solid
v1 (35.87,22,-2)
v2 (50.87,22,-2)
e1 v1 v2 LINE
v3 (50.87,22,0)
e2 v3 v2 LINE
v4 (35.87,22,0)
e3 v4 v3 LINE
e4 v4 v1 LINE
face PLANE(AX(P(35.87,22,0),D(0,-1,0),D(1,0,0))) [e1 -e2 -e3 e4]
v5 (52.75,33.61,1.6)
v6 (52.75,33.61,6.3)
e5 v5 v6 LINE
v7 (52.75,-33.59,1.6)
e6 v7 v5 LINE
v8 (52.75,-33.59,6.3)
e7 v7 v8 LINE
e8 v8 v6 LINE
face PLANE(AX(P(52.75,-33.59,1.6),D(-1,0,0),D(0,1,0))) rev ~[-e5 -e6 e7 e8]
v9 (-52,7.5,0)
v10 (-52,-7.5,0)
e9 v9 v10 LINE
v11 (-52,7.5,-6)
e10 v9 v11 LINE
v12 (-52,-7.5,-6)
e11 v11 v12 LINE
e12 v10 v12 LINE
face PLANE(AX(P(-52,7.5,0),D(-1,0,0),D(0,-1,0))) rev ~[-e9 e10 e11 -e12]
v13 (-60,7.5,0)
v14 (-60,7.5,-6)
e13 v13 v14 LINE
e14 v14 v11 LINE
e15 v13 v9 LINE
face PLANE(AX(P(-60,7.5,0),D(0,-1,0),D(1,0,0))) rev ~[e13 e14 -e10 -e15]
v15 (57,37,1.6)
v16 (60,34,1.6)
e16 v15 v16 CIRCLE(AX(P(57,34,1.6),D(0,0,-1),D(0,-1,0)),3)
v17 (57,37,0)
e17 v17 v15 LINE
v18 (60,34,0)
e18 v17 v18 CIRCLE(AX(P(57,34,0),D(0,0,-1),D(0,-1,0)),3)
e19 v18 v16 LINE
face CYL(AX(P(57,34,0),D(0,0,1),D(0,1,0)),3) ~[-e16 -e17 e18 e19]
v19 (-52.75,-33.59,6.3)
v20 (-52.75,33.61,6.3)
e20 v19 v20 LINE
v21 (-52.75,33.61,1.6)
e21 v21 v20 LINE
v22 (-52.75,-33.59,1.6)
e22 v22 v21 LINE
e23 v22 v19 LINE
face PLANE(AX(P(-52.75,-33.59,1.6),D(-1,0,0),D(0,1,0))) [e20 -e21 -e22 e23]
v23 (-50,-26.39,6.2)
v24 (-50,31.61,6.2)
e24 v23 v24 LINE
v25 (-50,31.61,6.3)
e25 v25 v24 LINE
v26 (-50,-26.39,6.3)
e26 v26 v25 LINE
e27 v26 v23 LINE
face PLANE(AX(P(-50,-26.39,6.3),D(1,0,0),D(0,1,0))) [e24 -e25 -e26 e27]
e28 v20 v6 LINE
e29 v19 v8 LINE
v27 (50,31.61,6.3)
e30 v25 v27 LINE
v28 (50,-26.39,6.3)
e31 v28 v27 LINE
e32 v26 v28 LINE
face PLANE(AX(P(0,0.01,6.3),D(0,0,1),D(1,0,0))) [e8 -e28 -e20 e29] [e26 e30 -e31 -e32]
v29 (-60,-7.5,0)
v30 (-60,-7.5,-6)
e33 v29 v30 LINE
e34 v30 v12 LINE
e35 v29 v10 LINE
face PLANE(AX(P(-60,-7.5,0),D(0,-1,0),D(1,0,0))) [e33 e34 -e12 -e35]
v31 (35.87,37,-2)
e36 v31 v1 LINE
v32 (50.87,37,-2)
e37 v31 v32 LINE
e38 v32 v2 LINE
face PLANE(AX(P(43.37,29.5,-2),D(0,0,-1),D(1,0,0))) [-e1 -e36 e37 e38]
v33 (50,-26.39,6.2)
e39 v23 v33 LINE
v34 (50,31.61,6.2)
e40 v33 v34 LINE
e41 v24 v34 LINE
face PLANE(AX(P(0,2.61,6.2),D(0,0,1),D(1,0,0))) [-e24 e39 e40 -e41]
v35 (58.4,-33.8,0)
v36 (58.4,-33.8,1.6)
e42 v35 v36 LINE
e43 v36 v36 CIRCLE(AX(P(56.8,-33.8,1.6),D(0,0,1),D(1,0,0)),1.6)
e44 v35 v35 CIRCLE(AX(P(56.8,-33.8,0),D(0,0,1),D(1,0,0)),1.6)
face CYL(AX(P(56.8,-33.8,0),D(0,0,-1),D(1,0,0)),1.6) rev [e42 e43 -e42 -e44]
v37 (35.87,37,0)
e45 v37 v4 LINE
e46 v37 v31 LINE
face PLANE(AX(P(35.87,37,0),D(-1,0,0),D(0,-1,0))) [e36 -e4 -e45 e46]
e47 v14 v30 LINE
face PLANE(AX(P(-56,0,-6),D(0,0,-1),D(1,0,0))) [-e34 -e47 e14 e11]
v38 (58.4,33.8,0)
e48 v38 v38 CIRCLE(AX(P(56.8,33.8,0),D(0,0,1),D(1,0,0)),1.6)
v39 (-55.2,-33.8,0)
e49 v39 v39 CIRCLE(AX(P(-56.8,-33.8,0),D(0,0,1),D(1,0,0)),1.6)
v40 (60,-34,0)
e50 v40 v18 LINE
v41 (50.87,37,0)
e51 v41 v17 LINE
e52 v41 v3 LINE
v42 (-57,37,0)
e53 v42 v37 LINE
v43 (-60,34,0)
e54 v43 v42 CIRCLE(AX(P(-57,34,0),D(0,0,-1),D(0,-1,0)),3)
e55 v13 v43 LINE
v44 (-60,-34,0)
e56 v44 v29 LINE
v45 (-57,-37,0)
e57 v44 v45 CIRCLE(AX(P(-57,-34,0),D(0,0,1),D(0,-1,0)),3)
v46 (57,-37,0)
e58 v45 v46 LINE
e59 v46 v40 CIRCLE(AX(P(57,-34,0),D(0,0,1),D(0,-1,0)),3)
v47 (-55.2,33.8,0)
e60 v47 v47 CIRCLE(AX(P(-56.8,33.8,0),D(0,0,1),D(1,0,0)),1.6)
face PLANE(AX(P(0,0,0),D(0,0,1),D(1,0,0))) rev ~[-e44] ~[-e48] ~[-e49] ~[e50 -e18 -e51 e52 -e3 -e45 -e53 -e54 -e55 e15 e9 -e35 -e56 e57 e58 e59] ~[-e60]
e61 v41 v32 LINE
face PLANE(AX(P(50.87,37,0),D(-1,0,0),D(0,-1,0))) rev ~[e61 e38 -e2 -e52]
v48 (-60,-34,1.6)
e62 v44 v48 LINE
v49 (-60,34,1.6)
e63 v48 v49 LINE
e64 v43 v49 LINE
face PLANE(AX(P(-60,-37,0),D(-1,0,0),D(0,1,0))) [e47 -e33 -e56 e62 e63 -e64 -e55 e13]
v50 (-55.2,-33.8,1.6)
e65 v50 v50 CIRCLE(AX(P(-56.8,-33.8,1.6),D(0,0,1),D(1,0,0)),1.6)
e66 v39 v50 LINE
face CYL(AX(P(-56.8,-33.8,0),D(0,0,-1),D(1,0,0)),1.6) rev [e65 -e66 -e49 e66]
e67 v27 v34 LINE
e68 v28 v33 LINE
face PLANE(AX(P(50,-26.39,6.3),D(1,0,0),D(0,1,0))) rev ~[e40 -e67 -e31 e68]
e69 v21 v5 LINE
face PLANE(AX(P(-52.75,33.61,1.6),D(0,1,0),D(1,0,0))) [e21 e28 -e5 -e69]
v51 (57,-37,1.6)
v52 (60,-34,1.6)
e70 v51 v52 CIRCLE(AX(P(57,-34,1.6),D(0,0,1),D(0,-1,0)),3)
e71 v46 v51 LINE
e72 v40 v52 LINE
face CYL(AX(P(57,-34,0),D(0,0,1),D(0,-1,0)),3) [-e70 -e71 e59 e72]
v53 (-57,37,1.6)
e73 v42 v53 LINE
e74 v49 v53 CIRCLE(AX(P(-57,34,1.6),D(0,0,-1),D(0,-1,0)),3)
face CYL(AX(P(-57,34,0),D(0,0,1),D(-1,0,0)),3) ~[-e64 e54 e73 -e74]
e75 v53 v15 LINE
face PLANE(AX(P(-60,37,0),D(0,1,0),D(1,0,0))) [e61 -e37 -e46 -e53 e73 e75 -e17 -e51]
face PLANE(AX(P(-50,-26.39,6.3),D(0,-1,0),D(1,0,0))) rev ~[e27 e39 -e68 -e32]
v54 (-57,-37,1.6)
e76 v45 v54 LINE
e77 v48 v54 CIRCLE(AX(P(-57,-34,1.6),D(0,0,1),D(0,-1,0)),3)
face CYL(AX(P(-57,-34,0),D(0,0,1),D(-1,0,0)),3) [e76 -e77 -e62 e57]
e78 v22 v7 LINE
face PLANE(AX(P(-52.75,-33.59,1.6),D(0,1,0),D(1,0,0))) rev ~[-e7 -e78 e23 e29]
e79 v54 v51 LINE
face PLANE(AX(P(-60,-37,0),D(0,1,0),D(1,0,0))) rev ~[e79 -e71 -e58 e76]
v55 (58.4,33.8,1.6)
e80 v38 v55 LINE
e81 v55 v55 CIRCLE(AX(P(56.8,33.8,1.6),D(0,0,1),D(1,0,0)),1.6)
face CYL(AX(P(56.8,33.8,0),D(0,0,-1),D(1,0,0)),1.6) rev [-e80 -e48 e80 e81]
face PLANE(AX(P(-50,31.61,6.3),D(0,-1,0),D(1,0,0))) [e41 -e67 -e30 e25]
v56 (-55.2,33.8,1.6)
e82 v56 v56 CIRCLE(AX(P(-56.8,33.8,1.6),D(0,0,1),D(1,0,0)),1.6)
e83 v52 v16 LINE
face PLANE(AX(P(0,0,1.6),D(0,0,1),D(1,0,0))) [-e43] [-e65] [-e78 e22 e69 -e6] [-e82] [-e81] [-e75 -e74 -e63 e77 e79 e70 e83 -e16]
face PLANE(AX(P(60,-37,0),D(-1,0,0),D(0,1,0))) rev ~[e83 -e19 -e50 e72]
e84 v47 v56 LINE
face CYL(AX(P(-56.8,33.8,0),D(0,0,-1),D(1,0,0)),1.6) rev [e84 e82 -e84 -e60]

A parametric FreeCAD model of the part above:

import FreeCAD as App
import Part
import Sketcher
from FreeCAD import Vector
Q = App.Units.Quantity


def edges_at(feature, points):
    """Names of the edges that pass closest to the given points."""
    edges = feature.Shape.Edges
    near = lambda p: min(range(len(edges)), key=lambda i: edges[i].distToShape(Part.Vertex(*p))[0])
    return sorted({f"Edge{near(p) + 1}" for p in points})


def add_polygon(sketch, points):
    """Adds a closed chain of lines whose ends are joined by coincident constraints."""
    first, n = sketch.GeometryCount, len(points)
    for a, b in zip(points, points[1:] + points[:1]):
        sketch.addGeometry(Part.LineSegment(App.Vector(*a, 0), App.Vector(*b, 0)), False)
    for i in range(n):
        sketch.addConstraint(Sketcher.Constraint("Coincident", first + i, 2, first + (i + 1) % n, 1))

doc = App.newDocument("Part")
params = doc.addObject("Spreadsheet::Sheet", "Params")
for row, (alias, value) in enumerate([
    ("sketch1_diameter", "3.2 mm"),
    ("sketch1_width", "120 mm"),
    ("sketch1_height", "74 mm"),
    ("pad1_length", "1.6 mm"),
    ("sketch2_width", "105.5 mm"),
    ("sketch2_height", "67.2 mm"),
    ("pad2_length", "4.7 mm"),
    ("sketch3_width", "100 mm"),
    ("sketch3_height", "58 mm"),
    ("pocket1_length", "0.1 mm"),
    ("sketch4_width", "15 mm"),
    ("pad3_length", "2 mm"),
    ("sketch5_width", "8 mm"),
    ("sketch5_height", "15 mm"),
    ("pad4_length", "6 mm"),
    ("fillet_radius", "3 mm"),
], start=1):
    params.set(f"A{row}", alias)
    params.set(f"B{row}", "=" + value)
    params.setAlias(f"B{row}", alias)

body = doc.addObject("PartDesign::Body", "Body")

sketch1 = doc.addObject("Sketcher::SketchObject", "Sketch")
body.addObject(sketch1)
sketch1.AttachmentSupport = (doc.XY_Plane, [""])
sketch1.MapMode = "FlatFace"
add_polygon(sketch1, [(-60, 37), (-60, -37), (60, -37), (60, 37)])
sketch1.addGeometry(Part.Circle(Vector(-56.8, -33.8, 0), Vector(0, 0, 1), 1.6), False)
sketch1.addGeometry(Part.Circle(Vector(56.8, -33.8, 0), Vector(0, 0, 1), 1.6), False)
sketch1.addGeometry(Part.Circle(Vector(-56.8, 33.8, 0), Vector(0, 0, 1), 1.6), False)
sketch1.addGeometry(Part.Circle(Vector(56.8, 33.8, 0), Vector(0, 0, 1), 1.6), False)
sketch1.addConstraint([
    Sketcher.Constraint("Vertical", 0),
    Sketcher.Constraint("Horizontal", 1),
    Sketcher.Constraint("Vertical", 2),
    Sketcher.Constraint("Horizontal", 3),
    Sketcher.Constraint("Equal", 4, 5),
    Sketcher.Constraint("Equal", 5, 6),
    Sketcher.Constraint("Equal", 6, 7),
    Sketcher.Constraint("Symmetric", 5, 3, 6, 3, -1, 1),
    Sketcher.Constraint("Symmetric", 4, 3, 7, 3, -1, 1),
    Sketcher.Constraint("Symmetric", 0, 2, 2, 2, -1, 1),
    Sketcher.Constraint("Symmetric", 4, 3, 5, 3, -2),
    Sketcher.Constraint("Diameter", 4, Q("3.2 mm")),
    Sketcher.Constraint("DistanceX", 1, 1, 1, 2, Q("120 mm")),
    Sketcher.Constraint("DistanceY", 0, 2, 0, 1, Q("74 mm")),
    Sketcher.Constraint("DistanceX", 4, 3, -1, 1, Q("56.8 mm")),
    Sketcher.Constraint("DistanceY", 4, 3, -1, 1, Q("33.8 mm")),
])
sketch1.setExpression("Constraints[15]", "Params.sketch1_diameter")
sketch1.setExpression("Constraints[16]", "Params.sketch1_width")
sketch1.setExpression("Constraints[17]", "Params.sketch1_height")
pad1 = doc.addObject("PartDesign::Pad", "Pad")
body.addObject(pad1)
pad1.Profile = sketch1
pad1.setExpression("Length", "Params.pad1_length")

sketch2 = doc.addObject("Sketcher::SketchObject", "Sketch001")
body.addObject(sketch2)
sketch2.AttachmentSupport = (doc.XY_Plane, [""])
sketch2.MapMode = "FlatFace"
sketch2.AttachmentOffset = App.Placement(Vector(0, 0, 1.6), App.Rotation())
add_polygon(sketch2, [(-53, 34), (-53, -34), (53, -34), (53, 34)])
sketch2.addConstraint([
    Sketcher.Constraint("Vertical", 0),
    Sketcher.Constraint("Horizontal", 1),
    Sketcher.Constraint("Vertical", 2),
    Sketcher.Constraint("Horizontal", 3),
    Sketcher.Constraint("DistanceX", 1, 1, 1, 2, Q("105.5 mm")),
    Sketcher.Constraint("DistanceY", 0, 2, 0, 1, Q("67.2 mm")),
    Sketcher.Constraint("DistanceX", 0, 2, -1, 1, Q("52.75 mm")),
    Sketcher.Constraint("DistanceY", 0, 2, -1, 1, Q("33.59 mm")),
])
sketch2.setExpression("Constraints[8]", "Params.sketch2_width")
sketch2.setExpression("Constraints[9]", "Params.sketch2_height")
pad2 = doc.addObject("PartDesign::Pad", "Pad001")
body.addObject(pad2)
pad2.Profile = sketch2
pad2.setExpression("Length", "Params.pad2_length")

sketch3 = doc.addObject("Sketcher::SketchObject", "Sketch002")
body.addObject(sketch3)
sketch3.AttachmentSupport = (doc.XY_Plane, [""])
sketch3.MapMode = "FlatFace"
sketch3.AttachmentOffset = App.Placement(Vector(0, 0, 6.3), App.Rotation())
add_polygon(sketch3, [(-50, 32), (-50, -26), (50, -26), (50, 32)])
sketch3.addConstraint([
    Sketcher.Constraint("Vertical", 0),
    Sketcher.Constraint("Horizontal", 1),
    Sketcher.Constraint("Vertical", 2),
    Sketcher.Constraint("Horizontal", 3),
    Sketcher.Constraint("DistanceX", 1, 1, 1, 2, Q("100 mm")),
    Sketcher.Constraint("DistanceY", 0, 2, 0, 1, Q("58 mm")),
    Sketcher.Constraint("DistanceX", 0, 2, -1, 1, Q("50 mm")),
    Sketcher.Constraint("DistanceY", 0, 2, -1, 1, Q("26.39 mm")),
])
sketch3.setExpression("Constraints[8]", "Params.sketch3_width")
sketch3.setExpression("Constraints[9]", "Params.sketch3_height")
pocket1 = doc.addObject("PartDesign::Pocket", "Pocket")
body.addObject(pocket1)
pocket1.Profile = sketch3
pocket1.setExpression("Length", "Params.pocket1_length")

sketch4 = doc.addObject("Sketcher::SketchObject", "Sketch003")
body.addObject(sketch4)
sketch4.AttachmentSupport = (doc.XY_Plane, [""])
sketch4.MapMode = "FlatFace"
add_polygon(sketch4, [(36, 22), (36, 37), (51, 37), (51, 22)])
sketch4.addConstraint([
    Sketcher.Constraint("Vertical", 0),
    Sketcher.Constraint("Horizontal", 1),
    Sketcher.Constraint("Vertical", 2),
    Sketcher.Constraint("Horizontal", 3),
    Sketcher.Constraint("Equal", 3, 0),
    Sketcher.Constraint("DistanceX", 1, 1, 1, 2, Q("15 mm")),
    Sketcher.Constraint("DistanceY", -1, 1, 0, 2, Q("37 mm")),
    Sketcher.Constraint("DistanceX", -1, 1, 0, 2, Q("35.87 mm")),
])
sketch4.setExpression("Constraints[9]", "Params.sketch4_width")
pad3 = doc.addObject("PartDesign::Pad", "Pad002")
body.addObject(pad3)
pad3.Profile = sketch4
pad3.setExpression("Length", "Params.pad3_length")
pad3.Reversed = True

sketch5 = doc.addObject("Sketcher::SketchObject", "Sketch004")
body.addObject(sketch5)
sketch5.AttachmentSupport = (doc.XY_Plane, [""])
sketch5.MapMode = "FlatFace"
add_polygon(sketch5, [(-60, -8), (-60, 8), (-52, 8), (-52, -8)])
sketch5.addConstraint([
    Sketcher.Constraint("Vertical", 0),
    Sketcher.Constraint("Horizontal", 1),
    Sketcher.Constraint("Vertical", 2),
    Sketcher.Constraint("Horizontal", 3),
    Sketcher.Constraint("DistanceX", 1, 1, 1, 2, Q("8 mm")),
    Sketcher.Constraint("DistanceY", 0, 1, 0, 2, Q("15 mm")),
    Sketcher.Constraint("DistanceX", 0, 2, -1, 1, Q("60 mm")),
    Sketcher.Constraint("DistanceY", -1, 1, 0, 2, Q("7.5 mm")),
])
sketch5.setExpression("Constraints[8]", "Params.sketch5_width")
sketch5.setExpression("Constraints[9]", "Params.sketch5_height")
pad4 = doc.addObject("PartDesign::Pad", "Pad003")
body.addObject(pad4)
pad4.Profile = sketch5
pad4.setExpression("Length", "Params.pad4_length")
pad4.Reversed = True
doc.recompute()

fillet = doc.addObject("PartDesign::Fillet", "Fillet")
body.addObject(fillet)
fillet.Base = (pad4, edges_at(pad4, [
    (60, 37, 0.8),
    (60, -37, 0.8),
    (-60, -37, 0.8),
    (-60, 37, 0.8),
]))
fillet.setExpression("Radius", "Params.fillet_radius")

doc.recompute()
